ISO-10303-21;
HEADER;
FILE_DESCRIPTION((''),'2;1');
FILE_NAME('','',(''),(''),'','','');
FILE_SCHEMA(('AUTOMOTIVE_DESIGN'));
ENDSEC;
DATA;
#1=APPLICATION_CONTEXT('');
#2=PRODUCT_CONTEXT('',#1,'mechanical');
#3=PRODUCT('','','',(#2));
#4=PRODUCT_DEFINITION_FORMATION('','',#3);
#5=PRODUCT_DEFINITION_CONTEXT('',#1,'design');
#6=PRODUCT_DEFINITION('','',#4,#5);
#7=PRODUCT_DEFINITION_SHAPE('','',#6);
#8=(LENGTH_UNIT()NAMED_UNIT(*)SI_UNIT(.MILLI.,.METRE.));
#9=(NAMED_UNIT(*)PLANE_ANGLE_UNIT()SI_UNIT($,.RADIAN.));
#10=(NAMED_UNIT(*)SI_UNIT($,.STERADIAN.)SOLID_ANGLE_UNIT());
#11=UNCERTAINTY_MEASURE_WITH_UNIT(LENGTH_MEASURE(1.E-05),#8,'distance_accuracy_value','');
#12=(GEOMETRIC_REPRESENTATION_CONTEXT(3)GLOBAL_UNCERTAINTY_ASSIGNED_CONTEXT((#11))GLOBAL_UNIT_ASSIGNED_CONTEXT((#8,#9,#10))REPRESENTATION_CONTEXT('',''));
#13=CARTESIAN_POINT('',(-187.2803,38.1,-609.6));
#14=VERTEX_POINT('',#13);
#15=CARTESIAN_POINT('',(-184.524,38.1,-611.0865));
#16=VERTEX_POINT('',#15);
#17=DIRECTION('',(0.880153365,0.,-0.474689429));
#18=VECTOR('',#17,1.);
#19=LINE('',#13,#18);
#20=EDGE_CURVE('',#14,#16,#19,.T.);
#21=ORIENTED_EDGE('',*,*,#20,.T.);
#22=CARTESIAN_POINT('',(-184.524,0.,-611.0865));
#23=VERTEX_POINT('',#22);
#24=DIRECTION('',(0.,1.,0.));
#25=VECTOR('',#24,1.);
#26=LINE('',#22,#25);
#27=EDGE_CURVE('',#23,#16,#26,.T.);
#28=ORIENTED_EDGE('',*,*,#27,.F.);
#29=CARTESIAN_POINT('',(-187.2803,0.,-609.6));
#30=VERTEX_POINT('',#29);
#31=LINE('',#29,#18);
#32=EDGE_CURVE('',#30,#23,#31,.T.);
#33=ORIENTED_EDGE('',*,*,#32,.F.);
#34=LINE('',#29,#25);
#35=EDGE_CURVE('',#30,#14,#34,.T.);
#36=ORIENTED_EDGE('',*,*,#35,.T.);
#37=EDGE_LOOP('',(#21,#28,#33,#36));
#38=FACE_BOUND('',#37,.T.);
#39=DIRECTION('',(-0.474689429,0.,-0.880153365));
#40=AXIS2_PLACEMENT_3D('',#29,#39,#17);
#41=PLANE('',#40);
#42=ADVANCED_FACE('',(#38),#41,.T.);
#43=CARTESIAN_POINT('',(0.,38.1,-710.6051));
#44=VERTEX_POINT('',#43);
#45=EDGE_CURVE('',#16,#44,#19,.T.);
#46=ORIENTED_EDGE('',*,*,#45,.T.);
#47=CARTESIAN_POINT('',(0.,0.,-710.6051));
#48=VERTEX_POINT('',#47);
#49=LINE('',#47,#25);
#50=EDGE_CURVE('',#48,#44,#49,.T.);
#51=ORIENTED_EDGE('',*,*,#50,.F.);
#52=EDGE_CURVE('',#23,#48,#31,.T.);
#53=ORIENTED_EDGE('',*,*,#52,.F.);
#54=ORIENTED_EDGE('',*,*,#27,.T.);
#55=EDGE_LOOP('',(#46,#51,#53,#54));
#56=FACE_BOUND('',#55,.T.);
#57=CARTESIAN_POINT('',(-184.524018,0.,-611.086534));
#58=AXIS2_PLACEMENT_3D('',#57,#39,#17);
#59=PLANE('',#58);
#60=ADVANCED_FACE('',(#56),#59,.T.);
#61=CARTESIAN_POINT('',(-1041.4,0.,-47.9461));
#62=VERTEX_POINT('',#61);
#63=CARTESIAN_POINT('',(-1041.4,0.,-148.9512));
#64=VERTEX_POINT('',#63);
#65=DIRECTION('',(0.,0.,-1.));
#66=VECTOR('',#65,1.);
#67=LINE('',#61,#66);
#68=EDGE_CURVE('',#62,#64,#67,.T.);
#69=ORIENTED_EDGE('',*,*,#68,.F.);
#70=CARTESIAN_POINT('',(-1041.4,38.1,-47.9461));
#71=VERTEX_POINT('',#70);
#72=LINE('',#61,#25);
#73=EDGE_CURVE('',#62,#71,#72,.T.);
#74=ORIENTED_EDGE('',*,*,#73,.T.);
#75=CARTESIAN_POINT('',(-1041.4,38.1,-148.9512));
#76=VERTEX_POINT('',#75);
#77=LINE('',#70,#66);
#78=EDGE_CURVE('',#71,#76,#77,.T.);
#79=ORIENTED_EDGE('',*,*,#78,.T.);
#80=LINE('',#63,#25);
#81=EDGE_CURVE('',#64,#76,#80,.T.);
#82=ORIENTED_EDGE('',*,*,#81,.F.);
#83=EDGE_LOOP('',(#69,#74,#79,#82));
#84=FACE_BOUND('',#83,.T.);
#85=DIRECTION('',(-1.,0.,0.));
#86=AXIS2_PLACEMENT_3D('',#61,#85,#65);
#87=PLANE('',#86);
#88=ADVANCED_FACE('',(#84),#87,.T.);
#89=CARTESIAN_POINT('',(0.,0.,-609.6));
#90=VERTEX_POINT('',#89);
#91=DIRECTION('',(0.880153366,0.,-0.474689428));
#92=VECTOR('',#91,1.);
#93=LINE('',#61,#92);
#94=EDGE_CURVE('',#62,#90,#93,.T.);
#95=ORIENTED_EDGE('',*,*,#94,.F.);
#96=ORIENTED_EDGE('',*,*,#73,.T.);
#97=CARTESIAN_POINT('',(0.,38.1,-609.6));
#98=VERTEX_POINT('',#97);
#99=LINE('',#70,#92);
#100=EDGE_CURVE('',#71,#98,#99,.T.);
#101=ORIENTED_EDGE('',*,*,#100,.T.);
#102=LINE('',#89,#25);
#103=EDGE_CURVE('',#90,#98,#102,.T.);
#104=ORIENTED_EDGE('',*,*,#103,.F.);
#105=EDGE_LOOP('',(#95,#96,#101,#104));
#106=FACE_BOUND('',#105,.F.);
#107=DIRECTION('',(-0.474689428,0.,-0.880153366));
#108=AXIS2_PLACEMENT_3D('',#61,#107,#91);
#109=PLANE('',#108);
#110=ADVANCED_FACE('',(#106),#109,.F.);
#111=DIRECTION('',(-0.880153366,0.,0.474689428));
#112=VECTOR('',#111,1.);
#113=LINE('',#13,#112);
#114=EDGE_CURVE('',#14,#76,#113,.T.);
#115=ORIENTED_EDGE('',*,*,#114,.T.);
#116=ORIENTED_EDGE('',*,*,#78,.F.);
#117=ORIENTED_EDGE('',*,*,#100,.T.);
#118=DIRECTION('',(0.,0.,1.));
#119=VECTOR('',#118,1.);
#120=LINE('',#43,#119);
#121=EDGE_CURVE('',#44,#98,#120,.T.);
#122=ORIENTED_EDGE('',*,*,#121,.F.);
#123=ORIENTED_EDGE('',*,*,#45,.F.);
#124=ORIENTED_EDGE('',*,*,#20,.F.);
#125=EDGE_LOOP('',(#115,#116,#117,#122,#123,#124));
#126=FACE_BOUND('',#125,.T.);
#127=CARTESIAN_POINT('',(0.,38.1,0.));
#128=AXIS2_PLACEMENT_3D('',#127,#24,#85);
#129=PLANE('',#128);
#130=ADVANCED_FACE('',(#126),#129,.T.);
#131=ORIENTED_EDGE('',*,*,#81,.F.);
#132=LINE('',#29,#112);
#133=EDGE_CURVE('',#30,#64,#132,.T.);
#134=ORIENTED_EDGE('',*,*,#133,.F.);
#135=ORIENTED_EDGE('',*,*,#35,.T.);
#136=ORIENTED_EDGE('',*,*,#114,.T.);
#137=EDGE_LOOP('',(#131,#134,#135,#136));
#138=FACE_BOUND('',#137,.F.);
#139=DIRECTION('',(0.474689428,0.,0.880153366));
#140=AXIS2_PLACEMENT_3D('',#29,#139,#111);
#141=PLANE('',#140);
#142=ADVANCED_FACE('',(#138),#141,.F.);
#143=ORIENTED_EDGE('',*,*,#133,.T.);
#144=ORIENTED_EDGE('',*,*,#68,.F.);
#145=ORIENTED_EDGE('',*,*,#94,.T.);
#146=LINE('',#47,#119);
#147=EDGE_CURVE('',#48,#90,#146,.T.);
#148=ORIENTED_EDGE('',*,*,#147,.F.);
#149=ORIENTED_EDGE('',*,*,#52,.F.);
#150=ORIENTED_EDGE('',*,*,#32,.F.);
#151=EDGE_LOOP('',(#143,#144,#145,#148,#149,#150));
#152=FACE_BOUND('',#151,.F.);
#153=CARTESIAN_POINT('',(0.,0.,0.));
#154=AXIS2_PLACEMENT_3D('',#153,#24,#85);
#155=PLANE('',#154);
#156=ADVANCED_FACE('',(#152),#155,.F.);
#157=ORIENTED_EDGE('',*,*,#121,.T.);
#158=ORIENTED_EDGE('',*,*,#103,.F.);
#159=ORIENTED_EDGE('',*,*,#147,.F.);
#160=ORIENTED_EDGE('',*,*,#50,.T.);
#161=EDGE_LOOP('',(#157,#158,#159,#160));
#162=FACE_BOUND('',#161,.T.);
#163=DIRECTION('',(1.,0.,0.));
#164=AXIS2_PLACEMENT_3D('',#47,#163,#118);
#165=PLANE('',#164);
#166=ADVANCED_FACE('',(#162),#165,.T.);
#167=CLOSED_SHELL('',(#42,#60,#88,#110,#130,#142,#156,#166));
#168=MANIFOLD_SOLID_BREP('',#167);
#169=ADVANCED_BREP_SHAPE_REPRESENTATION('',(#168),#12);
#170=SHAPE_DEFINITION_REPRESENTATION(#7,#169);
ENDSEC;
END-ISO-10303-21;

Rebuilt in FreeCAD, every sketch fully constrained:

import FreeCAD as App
import Part
import Sketcher
from FreeCAD import Vector
Q = App.Units.Quantity


def add_polygon(sketch, points):
    """Adds a closed chain of lines whose ends are joined by coincident constraints."""
    first, n = sketch.GeometryCount, len(points)
    for a, b in zip(points, points[1:] + points[:1]):
        sketch.addGeometry(Part.LineSegment(App.Vector(*a, 0), App.Vector(*b, 0)), False)
    for i in range(n):
        sketch.addConstraint(Sketcher.Constraint("Coincident", first + i, 2, first + (i + 1) % n, 1))

doc = App.newDocument("Part")
body = doc.addObject("PartDesign::Body", "Body")

# Sketch on XZ plane
sketch1 = body.newObject("Sketcher::SketchObject", "Sketch")
sketch1.AttachmentSupport = (doc.getObject("XZ_Plane"), [""])
sketch1.MapMode = "FlatFace"
add_polygon(sketch1, [(0, -711), (-187, -610), (-1041, -149), (-1041, -48), (0, -610)])  # lines 0-4
sketch1.addConstraint([
    Sketcher.Constraint("Vertical", 2),
    Sketcher.Constraint("Vertical", 4),
    Sketcher.Constraint("PointOnObject", 3, 2, -2),
    Sketcher.Constraint("Parallel", 0, 1),
    Sketcher.Constraint("Parallel", 1, 3),
    Sketcher.Constraint("Horizontal", 0, 2, 3, 2),
    Sketcher.Constraint("DistanceY", 0, 2, -1, 1, Q("24 in")),
    Sketcher.Constraint("DistanceX", 1, 2, -1, 1, Q("41 in")),
    Sketcher.Constraint("Angle", 0, Q("151.6609 deg")),
    Sketcher.Constraint("DistanceY", 2, 1, 2, 2, Q("101.005 mm")),
])
pad1 = body.newObject("PartDesign::Pad", "Pad")
pad1.Profile = sketch1
pad1.Length = Q("1.5 in")
pad1.Reversed = True

doc.recompute()
